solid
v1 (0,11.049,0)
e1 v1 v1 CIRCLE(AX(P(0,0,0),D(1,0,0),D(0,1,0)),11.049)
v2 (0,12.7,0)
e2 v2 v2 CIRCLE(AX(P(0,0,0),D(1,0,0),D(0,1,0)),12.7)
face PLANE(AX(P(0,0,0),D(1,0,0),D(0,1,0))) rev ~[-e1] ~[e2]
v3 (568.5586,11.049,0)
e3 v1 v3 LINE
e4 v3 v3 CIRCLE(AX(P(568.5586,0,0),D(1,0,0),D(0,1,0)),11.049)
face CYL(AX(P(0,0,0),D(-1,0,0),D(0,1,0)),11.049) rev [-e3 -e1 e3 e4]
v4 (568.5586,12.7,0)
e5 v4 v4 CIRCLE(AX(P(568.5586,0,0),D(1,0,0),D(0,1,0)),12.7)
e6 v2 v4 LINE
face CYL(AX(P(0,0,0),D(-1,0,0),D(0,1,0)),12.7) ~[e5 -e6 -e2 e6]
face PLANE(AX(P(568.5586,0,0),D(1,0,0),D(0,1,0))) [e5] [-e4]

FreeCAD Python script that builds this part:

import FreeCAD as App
import Part
import Sketcher
from FreeCAD import Vector
Q = App.Units.Quantity

doc = App.newDocument("Part")
body = doc.addObject("PartDesign::Body", "Body")

sketch1 = body.newObject("Sketcher::SketchObject", "Sketch")
sketch1.AttachmentSupport = (doc.getObject("YZ_Plane"), [""])
sketch1.MapMode = "FlatFace"
sketch1.addGeometry([
    Part.Circle(Vector(0, 0, 0), Vector(0, 0, 1), 13),
    Part.Circle(Vector(0, 0, 0), Vector(0, 0, 1), 11),
], False)
sketch1.addConstraint([
    Sketcher.Constraint("Coincident", 0, 3, -1, 1),
    Sketcher.Constraint("Coincident", 1, 3, -1, 1),
    Sketcher.Constraint("Diameter", 0, Q("1 in")),
    Sketcher.Constraint("Diameter", 1, Q("0.87 in")),
])
pad1 = body.newObject("PartDesign::Pad", "Pad")
pad1.Profile = sketch1
pad1.Length = Q("22.3841969 in")

doc.recompute()
